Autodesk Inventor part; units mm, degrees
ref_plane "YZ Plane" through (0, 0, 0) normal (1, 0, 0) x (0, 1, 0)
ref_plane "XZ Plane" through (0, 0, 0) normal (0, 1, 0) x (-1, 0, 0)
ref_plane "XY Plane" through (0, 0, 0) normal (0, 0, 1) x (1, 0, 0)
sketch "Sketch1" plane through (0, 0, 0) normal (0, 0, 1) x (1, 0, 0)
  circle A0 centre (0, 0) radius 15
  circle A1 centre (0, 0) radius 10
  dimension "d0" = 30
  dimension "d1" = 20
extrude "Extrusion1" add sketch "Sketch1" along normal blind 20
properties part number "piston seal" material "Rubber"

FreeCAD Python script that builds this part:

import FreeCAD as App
import Part
import Sketcher

V = App.Vector

doc = App.newDocument("Part")
body = doc.addObject("PartDesign::Body", "Body")

sketch1 = doc.addObject("Sketcher::SketchObject", "Sketch")
body.addObject(sketch1)
sketch1.AttachmentSupport = (doc.XY_Plane, [""])
sketch1.MapMode = "FlatFace"
sketch1.addGeometry([
    Part.Circle(V(0, 0, 0), V(0, 0, 1), 15),
    Part.Circle(V(0, 0, 0), V(0, 0, 1), 10),
], False)
sketch1.addConstraint([
    Sketcher.Constraint("Coincident", 0, 3, -1, 1),
    Sketcher.Constraint("Coincident", 1, 3, -1, 1),
    Sketcher.Constraint("Diameter", 0, 30.0),
    Sketcher.Constraint("Diameter", 1, 20.0),
])
pad1 = doc.addObject("PartDesign::Pad", "Pad")
body.addObject(pad1)
pad1.Profile = sketch1
pad1.Length = 20

doc.recompute()
